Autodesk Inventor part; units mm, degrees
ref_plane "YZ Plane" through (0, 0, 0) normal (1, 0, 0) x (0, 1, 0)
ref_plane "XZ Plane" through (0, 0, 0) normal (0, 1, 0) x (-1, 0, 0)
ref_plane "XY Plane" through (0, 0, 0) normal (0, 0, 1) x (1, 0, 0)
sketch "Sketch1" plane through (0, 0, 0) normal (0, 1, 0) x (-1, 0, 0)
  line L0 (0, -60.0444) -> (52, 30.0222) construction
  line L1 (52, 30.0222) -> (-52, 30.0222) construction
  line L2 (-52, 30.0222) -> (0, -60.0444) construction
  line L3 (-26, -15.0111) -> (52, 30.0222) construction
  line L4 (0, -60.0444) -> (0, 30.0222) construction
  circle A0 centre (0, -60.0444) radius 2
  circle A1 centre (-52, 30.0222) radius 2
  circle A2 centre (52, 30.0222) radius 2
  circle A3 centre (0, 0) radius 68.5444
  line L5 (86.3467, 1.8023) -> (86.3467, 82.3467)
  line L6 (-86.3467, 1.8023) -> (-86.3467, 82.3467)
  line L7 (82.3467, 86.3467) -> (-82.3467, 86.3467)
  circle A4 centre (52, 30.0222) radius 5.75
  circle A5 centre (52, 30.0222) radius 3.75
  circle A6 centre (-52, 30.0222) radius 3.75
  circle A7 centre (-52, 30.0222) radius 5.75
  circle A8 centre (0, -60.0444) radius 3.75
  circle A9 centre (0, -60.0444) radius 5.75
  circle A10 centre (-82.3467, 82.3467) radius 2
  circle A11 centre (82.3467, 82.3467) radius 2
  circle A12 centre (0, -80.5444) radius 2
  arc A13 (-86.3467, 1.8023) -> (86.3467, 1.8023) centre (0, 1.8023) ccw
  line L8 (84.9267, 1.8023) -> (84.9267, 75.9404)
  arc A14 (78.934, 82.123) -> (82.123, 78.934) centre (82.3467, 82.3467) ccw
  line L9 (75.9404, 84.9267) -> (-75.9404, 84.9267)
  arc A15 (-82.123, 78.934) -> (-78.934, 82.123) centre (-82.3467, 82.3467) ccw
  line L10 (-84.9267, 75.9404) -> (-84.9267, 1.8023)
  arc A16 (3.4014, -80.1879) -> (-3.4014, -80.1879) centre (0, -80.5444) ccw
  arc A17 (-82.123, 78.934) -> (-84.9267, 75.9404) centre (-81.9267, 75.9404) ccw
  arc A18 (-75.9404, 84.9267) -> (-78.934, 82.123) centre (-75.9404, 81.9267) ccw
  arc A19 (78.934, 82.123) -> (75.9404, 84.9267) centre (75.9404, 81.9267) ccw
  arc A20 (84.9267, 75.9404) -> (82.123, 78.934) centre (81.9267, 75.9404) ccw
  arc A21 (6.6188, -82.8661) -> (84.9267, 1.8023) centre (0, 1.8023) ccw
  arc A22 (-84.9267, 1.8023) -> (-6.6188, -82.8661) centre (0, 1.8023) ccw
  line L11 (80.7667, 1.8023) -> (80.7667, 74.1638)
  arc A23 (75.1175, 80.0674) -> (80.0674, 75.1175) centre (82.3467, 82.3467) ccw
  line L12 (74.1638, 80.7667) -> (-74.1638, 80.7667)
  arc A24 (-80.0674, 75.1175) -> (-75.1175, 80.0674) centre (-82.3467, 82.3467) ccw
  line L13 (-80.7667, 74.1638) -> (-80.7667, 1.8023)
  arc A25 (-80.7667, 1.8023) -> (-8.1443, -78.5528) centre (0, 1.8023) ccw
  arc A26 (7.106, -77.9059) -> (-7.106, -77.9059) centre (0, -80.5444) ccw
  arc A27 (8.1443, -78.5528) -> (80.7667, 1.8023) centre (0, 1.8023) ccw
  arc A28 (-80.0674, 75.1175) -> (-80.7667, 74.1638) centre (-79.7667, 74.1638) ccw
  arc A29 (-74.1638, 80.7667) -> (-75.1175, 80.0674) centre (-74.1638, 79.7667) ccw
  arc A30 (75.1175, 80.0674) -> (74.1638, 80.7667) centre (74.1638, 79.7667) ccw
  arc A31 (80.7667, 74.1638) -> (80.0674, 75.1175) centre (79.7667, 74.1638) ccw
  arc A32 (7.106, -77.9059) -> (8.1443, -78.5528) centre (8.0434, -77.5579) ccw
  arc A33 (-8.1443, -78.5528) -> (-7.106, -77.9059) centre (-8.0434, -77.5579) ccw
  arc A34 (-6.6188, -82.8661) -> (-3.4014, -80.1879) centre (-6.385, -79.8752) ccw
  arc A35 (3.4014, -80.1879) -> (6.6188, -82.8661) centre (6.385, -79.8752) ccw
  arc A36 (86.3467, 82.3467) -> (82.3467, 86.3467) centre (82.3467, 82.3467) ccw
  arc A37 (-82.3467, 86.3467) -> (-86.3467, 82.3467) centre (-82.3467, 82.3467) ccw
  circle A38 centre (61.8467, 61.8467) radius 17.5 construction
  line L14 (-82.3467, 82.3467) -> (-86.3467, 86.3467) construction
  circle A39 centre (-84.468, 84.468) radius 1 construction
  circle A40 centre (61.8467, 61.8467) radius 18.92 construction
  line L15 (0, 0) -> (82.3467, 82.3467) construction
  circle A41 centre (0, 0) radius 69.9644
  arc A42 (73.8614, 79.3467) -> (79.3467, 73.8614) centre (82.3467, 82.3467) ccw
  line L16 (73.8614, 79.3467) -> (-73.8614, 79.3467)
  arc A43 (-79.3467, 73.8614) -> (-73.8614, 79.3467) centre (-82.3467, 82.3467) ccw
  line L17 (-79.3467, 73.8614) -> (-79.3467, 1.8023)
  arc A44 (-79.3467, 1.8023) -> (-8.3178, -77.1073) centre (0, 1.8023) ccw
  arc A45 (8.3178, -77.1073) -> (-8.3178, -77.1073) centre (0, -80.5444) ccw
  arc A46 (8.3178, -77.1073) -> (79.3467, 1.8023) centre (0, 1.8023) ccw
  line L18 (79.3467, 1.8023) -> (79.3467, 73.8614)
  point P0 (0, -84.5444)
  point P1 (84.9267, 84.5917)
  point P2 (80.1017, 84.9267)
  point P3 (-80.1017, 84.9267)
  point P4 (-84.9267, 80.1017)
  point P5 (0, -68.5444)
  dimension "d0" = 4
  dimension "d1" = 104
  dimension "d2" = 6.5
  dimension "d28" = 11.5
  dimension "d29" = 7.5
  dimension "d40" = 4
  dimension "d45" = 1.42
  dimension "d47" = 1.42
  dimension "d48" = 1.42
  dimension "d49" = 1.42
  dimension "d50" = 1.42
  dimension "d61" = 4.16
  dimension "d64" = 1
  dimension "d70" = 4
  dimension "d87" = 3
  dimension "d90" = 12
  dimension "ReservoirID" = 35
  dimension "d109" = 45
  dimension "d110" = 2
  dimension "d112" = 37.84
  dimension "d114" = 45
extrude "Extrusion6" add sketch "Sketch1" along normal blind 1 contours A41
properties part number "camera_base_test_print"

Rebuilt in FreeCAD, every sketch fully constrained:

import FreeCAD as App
import Part
import Sketcher
from FreeCAD import Vector
Q = App.Units.Quantity

doc = App.newDocument("Part")
body = doc.addObject("PartDesign::Body", "Body")

# Sketch on XZ plane
sketch1 = body.newObject("Sketcher::SketchObject", "Sketch")
sketch1.AttachmentSupport = (doc.getObject("XZ_Plane"), [""])
sketch1.MapMode = "FlatFace"
sketch1.addGeometry(Part.Circle(Vector(0, 0, 0), Vector(0, 0, 1), 70), False)
sketch1.addGeometry(Part.Circle(Vector(0, 0, 0), Vector(0, 0, 1), 69), False)
sketch1.addConstraint(Sketcher.Constraint("Coincident", 0, 3, -1, 1))
sketch1.addConstraint(Sketcher.Constraint("Coincident", 1, 3, -1, 1))
sketch1.addConstraint(Sketcher.Constraint("Diameter", 0, Q("139.9288 mm")))
sketch1.addConstraint(Sketcher.Constraint("Diameter", 1, Q("137.0888 mm")))
pad1 = body.newObject("PartDesign::Pad", "Pad")
pad1.Profile = sketch1
pad1.Length = 1
pad1.Reversed = True

doc.recompute()
